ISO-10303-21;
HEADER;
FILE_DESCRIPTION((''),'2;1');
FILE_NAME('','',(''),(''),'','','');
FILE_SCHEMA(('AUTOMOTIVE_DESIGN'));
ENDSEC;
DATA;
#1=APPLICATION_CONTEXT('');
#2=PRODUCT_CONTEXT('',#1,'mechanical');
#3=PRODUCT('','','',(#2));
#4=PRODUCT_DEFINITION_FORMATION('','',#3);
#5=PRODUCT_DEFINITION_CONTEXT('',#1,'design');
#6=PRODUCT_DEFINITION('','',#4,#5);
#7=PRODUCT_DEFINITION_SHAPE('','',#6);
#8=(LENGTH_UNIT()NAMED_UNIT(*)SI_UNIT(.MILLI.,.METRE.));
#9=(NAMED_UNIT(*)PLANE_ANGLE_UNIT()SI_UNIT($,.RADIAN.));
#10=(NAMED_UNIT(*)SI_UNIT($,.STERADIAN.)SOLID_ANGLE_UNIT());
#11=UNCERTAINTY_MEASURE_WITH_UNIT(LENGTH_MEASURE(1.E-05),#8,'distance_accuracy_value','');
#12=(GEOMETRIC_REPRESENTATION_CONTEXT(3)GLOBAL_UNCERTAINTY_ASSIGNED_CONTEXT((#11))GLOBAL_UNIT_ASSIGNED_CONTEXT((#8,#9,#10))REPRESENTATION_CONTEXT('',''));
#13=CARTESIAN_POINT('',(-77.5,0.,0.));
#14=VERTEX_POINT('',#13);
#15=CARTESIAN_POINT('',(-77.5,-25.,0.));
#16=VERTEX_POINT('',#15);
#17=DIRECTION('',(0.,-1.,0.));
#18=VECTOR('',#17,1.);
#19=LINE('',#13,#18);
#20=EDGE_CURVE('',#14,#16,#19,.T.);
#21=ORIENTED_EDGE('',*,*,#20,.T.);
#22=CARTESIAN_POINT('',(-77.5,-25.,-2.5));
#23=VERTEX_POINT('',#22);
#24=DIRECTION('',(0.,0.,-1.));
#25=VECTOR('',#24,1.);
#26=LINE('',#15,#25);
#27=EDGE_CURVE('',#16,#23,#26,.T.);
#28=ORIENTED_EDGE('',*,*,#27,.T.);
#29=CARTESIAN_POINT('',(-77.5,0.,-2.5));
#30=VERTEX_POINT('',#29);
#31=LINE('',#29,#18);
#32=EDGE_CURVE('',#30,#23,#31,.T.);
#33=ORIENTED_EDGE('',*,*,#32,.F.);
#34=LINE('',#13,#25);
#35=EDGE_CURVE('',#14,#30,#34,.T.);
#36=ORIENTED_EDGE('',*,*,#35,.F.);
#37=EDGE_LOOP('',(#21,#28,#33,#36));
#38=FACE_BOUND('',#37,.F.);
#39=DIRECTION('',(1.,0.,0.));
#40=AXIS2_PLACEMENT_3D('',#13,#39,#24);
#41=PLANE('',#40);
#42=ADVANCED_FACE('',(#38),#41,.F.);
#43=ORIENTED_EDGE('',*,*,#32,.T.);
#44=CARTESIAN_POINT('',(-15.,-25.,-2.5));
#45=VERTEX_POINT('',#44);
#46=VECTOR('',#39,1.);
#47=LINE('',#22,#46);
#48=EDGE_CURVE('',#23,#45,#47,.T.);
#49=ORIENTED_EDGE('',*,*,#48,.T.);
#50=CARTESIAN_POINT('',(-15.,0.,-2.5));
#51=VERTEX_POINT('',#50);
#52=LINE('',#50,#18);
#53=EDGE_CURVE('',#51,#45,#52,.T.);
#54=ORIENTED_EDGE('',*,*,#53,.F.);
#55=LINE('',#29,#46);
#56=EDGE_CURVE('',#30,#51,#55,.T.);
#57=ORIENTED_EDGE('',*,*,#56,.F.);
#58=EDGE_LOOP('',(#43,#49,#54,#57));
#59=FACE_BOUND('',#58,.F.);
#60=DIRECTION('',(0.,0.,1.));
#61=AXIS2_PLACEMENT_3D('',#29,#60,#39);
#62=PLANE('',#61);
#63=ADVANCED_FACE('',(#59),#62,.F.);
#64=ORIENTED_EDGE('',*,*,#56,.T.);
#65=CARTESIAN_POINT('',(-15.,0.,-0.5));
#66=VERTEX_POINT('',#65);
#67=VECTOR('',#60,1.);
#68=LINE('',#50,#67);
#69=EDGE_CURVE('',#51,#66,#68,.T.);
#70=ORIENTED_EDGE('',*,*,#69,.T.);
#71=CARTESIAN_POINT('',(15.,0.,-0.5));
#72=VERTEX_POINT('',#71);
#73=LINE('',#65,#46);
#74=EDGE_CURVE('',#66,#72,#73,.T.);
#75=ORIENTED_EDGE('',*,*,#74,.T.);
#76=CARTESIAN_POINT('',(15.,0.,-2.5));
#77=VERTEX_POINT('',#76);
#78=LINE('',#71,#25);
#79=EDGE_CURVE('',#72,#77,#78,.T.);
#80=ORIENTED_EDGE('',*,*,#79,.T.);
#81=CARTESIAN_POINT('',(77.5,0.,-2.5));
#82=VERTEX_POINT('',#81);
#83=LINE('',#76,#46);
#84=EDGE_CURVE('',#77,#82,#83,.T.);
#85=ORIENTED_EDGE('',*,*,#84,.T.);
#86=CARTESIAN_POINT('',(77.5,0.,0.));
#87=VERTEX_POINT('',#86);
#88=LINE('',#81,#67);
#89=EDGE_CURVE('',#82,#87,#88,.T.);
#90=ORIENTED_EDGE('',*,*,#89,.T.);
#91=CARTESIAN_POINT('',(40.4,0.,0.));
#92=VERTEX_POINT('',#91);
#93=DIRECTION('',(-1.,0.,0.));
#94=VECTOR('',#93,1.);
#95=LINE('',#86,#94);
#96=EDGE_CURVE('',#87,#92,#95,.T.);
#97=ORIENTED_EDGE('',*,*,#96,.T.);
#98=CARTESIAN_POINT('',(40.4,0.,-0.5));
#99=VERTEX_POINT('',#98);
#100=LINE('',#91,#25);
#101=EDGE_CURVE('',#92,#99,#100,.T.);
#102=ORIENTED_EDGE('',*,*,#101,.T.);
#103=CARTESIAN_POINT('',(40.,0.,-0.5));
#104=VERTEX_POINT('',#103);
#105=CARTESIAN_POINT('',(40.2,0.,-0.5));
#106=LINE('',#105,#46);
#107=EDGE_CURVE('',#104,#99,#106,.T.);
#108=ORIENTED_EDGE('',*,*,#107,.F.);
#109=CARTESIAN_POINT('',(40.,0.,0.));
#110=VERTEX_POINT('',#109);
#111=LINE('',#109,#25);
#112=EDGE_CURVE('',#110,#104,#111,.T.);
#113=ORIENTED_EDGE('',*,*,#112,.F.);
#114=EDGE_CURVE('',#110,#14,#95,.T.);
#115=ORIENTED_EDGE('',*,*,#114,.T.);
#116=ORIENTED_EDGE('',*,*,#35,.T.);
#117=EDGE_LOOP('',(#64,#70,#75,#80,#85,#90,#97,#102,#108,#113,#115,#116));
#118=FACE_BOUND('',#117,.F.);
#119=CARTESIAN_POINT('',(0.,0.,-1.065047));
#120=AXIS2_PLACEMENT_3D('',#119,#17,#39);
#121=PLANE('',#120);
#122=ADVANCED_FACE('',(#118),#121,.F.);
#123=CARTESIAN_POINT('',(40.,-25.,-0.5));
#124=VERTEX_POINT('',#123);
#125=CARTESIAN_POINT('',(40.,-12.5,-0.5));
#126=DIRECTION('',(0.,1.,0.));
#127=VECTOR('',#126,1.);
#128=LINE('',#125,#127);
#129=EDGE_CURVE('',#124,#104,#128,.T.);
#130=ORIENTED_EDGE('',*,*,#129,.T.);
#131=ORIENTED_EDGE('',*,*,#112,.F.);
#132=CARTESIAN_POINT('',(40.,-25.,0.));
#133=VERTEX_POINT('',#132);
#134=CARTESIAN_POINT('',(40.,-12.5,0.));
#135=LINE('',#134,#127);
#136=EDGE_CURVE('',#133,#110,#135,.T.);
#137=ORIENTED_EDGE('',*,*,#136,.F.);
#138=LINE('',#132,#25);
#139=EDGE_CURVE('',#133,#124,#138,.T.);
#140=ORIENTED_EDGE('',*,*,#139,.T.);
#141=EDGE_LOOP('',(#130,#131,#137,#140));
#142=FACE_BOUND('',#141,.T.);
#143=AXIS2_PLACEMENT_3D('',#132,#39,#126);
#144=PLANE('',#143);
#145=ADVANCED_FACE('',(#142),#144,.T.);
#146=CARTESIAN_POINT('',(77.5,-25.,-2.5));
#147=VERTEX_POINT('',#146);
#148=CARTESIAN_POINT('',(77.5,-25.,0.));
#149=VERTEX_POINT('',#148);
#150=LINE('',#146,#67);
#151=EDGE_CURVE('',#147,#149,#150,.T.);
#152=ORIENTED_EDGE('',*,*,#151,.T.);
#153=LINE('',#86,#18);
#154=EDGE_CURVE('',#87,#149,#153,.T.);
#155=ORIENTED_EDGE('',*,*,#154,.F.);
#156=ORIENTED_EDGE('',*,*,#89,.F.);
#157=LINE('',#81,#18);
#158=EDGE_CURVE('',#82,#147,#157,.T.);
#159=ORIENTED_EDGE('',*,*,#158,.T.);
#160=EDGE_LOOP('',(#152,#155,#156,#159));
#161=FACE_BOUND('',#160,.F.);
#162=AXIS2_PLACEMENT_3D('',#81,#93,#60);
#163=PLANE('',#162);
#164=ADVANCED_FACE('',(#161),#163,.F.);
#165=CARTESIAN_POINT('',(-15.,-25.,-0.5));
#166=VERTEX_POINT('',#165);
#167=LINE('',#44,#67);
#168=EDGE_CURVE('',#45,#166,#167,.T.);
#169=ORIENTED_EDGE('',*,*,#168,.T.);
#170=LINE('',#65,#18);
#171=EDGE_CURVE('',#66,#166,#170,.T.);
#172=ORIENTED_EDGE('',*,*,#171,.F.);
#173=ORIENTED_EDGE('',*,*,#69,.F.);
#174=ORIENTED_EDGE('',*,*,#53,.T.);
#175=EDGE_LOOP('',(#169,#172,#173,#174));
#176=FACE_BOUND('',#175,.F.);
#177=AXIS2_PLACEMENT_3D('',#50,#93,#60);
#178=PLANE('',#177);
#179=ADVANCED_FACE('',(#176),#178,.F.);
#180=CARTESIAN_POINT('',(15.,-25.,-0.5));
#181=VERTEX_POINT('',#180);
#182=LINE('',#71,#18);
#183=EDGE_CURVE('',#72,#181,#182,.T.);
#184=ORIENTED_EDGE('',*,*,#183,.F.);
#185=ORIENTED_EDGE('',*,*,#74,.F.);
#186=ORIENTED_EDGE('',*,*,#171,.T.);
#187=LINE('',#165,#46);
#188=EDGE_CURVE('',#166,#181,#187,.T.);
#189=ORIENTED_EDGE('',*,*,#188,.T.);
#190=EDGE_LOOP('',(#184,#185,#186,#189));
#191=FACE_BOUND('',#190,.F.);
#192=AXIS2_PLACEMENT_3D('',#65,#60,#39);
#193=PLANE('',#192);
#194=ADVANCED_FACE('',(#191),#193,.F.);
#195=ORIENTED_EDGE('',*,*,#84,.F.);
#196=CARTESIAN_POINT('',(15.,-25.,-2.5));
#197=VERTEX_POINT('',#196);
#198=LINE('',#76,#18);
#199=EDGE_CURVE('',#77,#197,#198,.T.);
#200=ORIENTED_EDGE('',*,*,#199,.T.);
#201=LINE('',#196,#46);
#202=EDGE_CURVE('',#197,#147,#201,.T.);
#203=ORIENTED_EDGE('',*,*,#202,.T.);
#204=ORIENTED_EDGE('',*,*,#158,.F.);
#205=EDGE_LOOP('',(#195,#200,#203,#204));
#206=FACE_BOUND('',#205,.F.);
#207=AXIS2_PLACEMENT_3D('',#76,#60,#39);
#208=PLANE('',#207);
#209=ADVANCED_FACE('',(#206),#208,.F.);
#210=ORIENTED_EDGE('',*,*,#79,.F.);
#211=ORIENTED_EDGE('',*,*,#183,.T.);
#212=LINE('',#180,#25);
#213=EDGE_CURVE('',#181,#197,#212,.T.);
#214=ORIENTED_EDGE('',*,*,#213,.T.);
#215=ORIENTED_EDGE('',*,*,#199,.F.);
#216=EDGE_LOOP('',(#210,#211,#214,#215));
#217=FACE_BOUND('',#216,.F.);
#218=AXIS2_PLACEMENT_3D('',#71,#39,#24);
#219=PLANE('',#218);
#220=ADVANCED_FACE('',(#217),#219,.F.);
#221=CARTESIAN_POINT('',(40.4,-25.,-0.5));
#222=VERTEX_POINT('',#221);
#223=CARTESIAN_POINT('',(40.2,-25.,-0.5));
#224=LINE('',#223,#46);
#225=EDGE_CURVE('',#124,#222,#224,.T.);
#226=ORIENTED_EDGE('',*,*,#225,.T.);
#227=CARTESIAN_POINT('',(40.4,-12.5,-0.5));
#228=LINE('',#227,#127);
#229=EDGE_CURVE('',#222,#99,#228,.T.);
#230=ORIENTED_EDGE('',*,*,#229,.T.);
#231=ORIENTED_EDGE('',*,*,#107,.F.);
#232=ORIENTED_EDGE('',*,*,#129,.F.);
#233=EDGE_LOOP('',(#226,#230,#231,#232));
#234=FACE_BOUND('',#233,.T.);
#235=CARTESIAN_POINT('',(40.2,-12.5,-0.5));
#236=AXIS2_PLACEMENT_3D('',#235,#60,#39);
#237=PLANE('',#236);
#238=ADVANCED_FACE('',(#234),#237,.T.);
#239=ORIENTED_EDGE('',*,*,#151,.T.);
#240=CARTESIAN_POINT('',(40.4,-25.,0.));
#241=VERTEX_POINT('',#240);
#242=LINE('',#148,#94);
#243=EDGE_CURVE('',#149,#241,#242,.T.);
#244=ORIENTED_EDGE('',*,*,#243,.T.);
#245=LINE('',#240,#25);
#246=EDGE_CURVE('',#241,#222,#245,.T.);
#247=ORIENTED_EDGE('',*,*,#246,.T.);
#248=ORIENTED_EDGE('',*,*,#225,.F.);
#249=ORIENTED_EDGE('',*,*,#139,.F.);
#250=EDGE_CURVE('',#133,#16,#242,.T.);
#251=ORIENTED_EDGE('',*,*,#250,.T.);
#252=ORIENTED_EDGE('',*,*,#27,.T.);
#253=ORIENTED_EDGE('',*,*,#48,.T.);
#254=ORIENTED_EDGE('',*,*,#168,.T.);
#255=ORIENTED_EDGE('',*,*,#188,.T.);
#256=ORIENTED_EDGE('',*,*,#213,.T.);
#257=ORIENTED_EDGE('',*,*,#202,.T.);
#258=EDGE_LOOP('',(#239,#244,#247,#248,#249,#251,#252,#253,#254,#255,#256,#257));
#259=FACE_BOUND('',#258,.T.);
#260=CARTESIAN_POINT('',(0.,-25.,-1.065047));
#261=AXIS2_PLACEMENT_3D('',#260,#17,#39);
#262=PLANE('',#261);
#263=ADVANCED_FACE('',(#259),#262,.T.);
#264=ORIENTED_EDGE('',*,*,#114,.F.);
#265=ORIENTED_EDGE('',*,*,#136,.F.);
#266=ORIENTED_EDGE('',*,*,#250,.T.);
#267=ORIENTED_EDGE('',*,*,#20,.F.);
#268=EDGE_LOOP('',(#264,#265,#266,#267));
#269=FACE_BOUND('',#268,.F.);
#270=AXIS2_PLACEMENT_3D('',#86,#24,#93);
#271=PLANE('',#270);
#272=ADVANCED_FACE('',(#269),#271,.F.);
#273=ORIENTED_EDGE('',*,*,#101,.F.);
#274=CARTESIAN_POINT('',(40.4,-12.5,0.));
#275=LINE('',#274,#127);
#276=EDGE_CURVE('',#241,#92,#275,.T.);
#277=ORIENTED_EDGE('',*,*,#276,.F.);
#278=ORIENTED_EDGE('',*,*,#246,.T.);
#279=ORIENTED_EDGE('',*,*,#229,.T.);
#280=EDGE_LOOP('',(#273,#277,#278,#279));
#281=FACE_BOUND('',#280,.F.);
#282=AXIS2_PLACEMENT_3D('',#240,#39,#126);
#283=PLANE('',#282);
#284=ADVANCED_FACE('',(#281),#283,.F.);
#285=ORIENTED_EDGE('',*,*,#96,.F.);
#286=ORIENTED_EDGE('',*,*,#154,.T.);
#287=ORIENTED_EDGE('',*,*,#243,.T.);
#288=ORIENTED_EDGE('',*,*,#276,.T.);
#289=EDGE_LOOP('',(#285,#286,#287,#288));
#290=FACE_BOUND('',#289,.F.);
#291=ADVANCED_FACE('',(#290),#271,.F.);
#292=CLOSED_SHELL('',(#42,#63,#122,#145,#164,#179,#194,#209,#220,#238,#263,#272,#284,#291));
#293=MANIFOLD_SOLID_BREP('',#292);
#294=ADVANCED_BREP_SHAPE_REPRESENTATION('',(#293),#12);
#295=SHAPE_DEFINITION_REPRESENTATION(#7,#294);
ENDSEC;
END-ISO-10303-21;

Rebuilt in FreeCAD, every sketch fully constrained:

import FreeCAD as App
import Part
import Sketcher
Q = App.Units.Quantity


def add_polygon(sketch, points):
    """Adds a closed chain of lines whose ends are joined by coincident constraints."""
    first, n = sketch.GeometryCount, len(points)
    for a, b in zip(points, points[1:] + points[:1]):
        sketch.addGeometry(Part.LineSegment(App.Vector(*a, 0), App.Vector(*b, 0)), False)
    for i in range(n):
        sketch.addConstraint(Sketcher.Constraint("Coincident", first + i, 2, first + (i + 1) % n, 1))

doc = App.newDocument("Part")
params = doc.addObject("Spreadsheet::Sheet", "Params")
for row, (alias, value) in enumerate([
    ("sketch1_width", "155 mm"),
    ("sketch1_width2", "30 mm"),
    ("sketch1_height", "2 mm"),
    ("sketch1_height2", "2.5 mm"),
    ("pad1_length", "25 mm"),
    ("sketch2_height", "25 mm"),
    ("sketch2_width", "0.4 mm"),
    ("pocket1_length", "0.5 mm"),
], start=1):
    params.set(f"A{row}", alias)
    params.set(f"B{row}", "=" + value)
    params.setAlias(f"B{row}", alias)

body = doc.addObject("PartDesign::Body", "Body")

# Sketch on XZ plane
sketch1 = doc.addObject("Sketcher::SketchObject", "Sketch")
body.addObject(sketch1)
sketch1.AttachmentSupport = (doc.XZ_Plane, [""])
sketch1.MapMode = "FlatFace"
add_polygon(sketch1, [(77.5, 0), (-77.5, 0), (-77.5, -2.5), (-15, -2.5), (-15, -0.5), (15, -0.5), (15, -2.5), (77.5, -2.5)])  # lines 0-7
sketch1.addConstraint(Sketcher.Constraint("Horizontal", 0))
sketch1.addConstraint(Sketcher.Constraint("Vertical", 1))
sketch1.addConstraint(Sketcher.Constraint("Horizontal", 2))
sketch1.addConstraint(Sketcher.Constraint("Vertical", 3))
sketch1.addConstraint(Sketcher.Constraint("Horizontal", 4))
sketch1.addConstraint(Sketcher.Constraint("Vertical", 5))
sketch1.addConstraint(Sketcher.Constraint("Horizontal", 6))
sketch1.addConstraint(Sketcher.Constraint("Vertical", 7))
sketch1.addConstraint(Sketcher.Constraint("Symmetric", 0, 2, 7, 2, -1, 1))
sketch1.addConstraint(Sketcher.Constraint("Symmetric", 2, 2, 5, 2, -2))
sketch1.addConstraint(Sketcher.Constraint("DistanceX", 0, 2, 0, 1, Q("155 mm")))
sketch1.addConstraint(Sketcher.Constraint("DistanceX", 4, 1, 4, 2, Q("30 mm")))
sketch1.addConstraint(Sketcher.Constraint("DistanceY", 3, 1, 3, 2, Q("2 mm")))
sketch1.addConstraint(Sketcher.Constraint("DistanceY", 1, 2, 1, 1, Q("2.5 mm")))
sketch1.setExpression("Constraints[18]", "Params.sketch1_width")
sketch1.setExpression("Constraints[19]", "Params.sketch1_width2")
sketch1.setExpression("Constraints[20]", "Params.sketch1_height")
sketch1.setExpression("Constraints[21]", "Params.sketch1_height2")
pad1 = doc.addObject("PartDesign::Pad", "Pad")
body.addObject(pad1)
pad1.Profile = sketch1
pad1.setExpression("Length", "Params.pad1_length")

# Sketch on XY plane
sketch2 = doc.addObject("Sketcher::SketchObject", "Sketch001")
body.addObject(sketch2)
sketch2.AttachmentSupport = (doc.XY_Plane, [""])
sketch2.MapMode = "FlatFace"
add_polygon(sketch2, [(40, 0), (40, -25), (40.4, -25), (40.4, 0)])  # lines 0-3
sketch2.addConstraint(Sketcher.Constraint("Vertical", 0))
sketch2.addConstraint(Sketcher.Constraint("Horizontal", 1))
sketch2.addConstraint(Sketcher.Constraint("Vertical", 2))
sketch2.addConstraint(Sketcher.Constraint("Horizontal", 3))
sketch2.addConstraint(Sketcher.Constraint("PointOnObject", 2, 2, -1))
sketch2.addConstraint(Sketcher.Constraint("DistanceY", 0, 2, 0, 1, Q("25 mm")))
sketch2.addConstraint(Sketcher.Constraint("DistanceX", 1, 1, 1, 2, Q("0.4 mm")))
sketch2.addConstraint(Sketcher.Constraint("DistanceX", -1, 1, 0, 2, Q("40 mm")))
sketch2.setExpression("Constraints[9]", "Params.sketch2_height")
sketch2.setExpression("Constraints[10]", "Params.sketch2_width")
pocket1 = doc.addObject("PartDesign::Pocket", "Pocket")
body.addObject(pocket1)
pocket1.Profile = sketch2
pocket1.setExpression("Length", "Params.pocket1_length")

doc.recompute()
